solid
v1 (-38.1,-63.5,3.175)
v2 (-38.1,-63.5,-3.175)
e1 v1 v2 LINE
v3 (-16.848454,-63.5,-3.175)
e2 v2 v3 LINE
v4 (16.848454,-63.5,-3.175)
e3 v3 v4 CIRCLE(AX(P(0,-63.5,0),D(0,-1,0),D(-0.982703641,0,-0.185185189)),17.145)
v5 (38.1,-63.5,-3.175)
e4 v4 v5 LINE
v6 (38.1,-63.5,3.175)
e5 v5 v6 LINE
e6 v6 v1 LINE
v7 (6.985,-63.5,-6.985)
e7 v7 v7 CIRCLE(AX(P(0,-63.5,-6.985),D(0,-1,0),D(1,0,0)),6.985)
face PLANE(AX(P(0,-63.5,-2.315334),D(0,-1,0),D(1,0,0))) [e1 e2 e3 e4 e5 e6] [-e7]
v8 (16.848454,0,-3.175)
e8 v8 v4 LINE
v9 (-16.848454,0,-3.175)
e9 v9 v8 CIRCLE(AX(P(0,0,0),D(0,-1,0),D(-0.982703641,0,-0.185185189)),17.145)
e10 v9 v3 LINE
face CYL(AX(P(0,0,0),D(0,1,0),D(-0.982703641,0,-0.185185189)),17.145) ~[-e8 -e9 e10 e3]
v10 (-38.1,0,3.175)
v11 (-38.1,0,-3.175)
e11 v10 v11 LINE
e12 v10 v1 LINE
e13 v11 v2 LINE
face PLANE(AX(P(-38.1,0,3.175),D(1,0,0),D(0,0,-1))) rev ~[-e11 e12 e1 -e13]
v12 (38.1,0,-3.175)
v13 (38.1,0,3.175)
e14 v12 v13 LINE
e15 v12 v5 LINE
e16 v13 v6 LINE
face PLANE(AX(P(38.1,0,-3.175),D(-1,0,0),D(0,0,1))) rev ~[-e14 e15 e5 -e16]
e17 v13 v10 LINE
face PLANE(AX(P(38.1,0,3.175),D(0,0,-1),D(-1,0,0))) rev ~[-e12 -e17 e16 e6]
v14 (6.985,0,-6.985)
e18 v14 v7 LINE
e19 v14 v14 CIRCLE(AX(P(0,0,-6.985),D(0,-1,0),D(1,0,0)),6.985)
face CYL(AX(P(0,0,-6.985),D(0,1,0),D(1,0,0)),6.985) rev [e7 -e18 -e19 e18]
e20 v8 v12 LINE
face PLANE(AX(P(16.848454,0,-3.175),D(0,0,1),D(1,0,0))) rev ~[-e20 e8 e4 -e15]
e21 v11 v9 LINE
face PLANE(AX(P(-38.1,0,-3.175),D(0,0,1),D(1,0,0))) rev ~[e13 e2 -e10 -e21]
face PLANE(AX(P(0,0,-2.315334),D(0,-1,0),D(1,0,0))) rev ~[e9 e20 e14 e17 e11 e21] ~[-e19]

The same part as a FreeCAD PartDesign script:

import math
import FreeCAD as App
import Part
import Sketcher
from FreeCAD import Vector
Q = App.Units.Quantity

doc = App.newDocument("Part")
params = doc.addObject("Spreadsheet::Sheet", "Params")
for row, (alias, value) in enumerate([
    ("sketch1_diameter", "0.55 in"),
    ("sketch1_width", "3 in"),
    ("sketch1_radius", "0.675 in"),
    ("sketch1_height", "0.25 in"),
    ("pad1_length", "2.5 in"),
], start=1):
    params.set(f"A{row}", alias)
    params.set(f"B{row}", "=" + value)
    params.setAlias(f"B{row}", alias)

body = doc.addObject("PartDesign::Body", "Body")

# Sketch on XZ plane
sketch1 = body.newObject("Sketcher::SketchObject", "Sketch")
sketch1.AttachmentSupport = (doc.getObject("XZ_Plane"), [""])
sketch1.MapMode = "FlatFace"
sketch1.addGeometry([
    Part.LineSegment(Vector(38, -3, 0), Vector(38, 3, 0)),  # 0
    Part.LineSegment(Vector(38, 3, 0), Vector(-38, 3, 0)),  # 1
    Part.LineSegment(Vector(-38, 3, 0), Vector(-38, -3, 0)),  # 2
    Part.LineSegment(Vector(-38, -3, 0), Vector(-17, -3, 0)),  # 3
    Part.ArcOfCircle(Part.Circle(Vector(0, 0, 0), Vector(0, 0, 1), 17), math.radians(-169), math.radians(-11)),  # 4
    Part.LineSegment(Vector(17, -3, 0), Vector(38, -3, 0)),  # 5
    Part.Circle(Vector(0, -7, 0), Vector(0, 0, 1), 7),  # 6
], False)
sketch1.addConstraint([
    Sketcher.Constraint("Coincident", 0, 2, 1, 1),
    Sketcher.Constraint("Coincident", 1, 2, 2, 1),
    Sketcher.Constraint("Coincident", 2, 2, 3, 1),
    Sketcher.Constraint("Coincident", 3, 2, 4, 1),
    Sketcher.Constraint("Coincident", 4, 2, 5, 1),
    Sketcher.Constraint("Coincident", 5, 2, 0, 1),
    Sketcher.Constraint("Vertical", 0),
    Sketcher.Constraint("Horizontal", 1),
    Sketcher.Constraint("Vertical", 2),
    Sketcher.Constraint("Horizontal", 3),
    Sketcher.Constraint("Horizontal", 5),
    Sketcher.Constraint("Coincident", 4, 3, -1, 1),
    Sketcher.Constraint("Symmetric", 0, 2, 2, 2, -1, 1),
    Sketcher.Constraint("PointOnObject", 6, 3, -2),
    Sketcher.Constraint("Horizontal", 3, 2, 4, 2),
    Sketcher.Constraint("Diameter", 6, Q("0.55 in")),
    Sketcher.Constraint("DistanceX", 1, 2, 1, 1, Q("3 in")),
    Sketcher.Constraint("Radius", 4, Q("0.675 in")),
    Sketcher.Constraint("DistanceY", 0, 1, 0, 2, Q("0.25 in")),
    Sketcher.Constraint("DistanceY", 6, 3, 0, 2, Q("0.4 in")),
])
sketch1.setExpression("Constraints[15]", "Params.sketch1_diameter")
sketch1.setExpression("Constraints[16]", "Params.sketch1_width")
sketch1.setExpression("Constraints[17]", "Params.sketch1_radius")
sketch1.setExpression("Constraints[18]", "Params.sketch1_height")
pad1 = body.newObject("PartDesign::Pad", "Pad")
pad1.Profile = sketch1
pad1.setExpression("Length", "Params.pad1_length")

doc.recompute()
